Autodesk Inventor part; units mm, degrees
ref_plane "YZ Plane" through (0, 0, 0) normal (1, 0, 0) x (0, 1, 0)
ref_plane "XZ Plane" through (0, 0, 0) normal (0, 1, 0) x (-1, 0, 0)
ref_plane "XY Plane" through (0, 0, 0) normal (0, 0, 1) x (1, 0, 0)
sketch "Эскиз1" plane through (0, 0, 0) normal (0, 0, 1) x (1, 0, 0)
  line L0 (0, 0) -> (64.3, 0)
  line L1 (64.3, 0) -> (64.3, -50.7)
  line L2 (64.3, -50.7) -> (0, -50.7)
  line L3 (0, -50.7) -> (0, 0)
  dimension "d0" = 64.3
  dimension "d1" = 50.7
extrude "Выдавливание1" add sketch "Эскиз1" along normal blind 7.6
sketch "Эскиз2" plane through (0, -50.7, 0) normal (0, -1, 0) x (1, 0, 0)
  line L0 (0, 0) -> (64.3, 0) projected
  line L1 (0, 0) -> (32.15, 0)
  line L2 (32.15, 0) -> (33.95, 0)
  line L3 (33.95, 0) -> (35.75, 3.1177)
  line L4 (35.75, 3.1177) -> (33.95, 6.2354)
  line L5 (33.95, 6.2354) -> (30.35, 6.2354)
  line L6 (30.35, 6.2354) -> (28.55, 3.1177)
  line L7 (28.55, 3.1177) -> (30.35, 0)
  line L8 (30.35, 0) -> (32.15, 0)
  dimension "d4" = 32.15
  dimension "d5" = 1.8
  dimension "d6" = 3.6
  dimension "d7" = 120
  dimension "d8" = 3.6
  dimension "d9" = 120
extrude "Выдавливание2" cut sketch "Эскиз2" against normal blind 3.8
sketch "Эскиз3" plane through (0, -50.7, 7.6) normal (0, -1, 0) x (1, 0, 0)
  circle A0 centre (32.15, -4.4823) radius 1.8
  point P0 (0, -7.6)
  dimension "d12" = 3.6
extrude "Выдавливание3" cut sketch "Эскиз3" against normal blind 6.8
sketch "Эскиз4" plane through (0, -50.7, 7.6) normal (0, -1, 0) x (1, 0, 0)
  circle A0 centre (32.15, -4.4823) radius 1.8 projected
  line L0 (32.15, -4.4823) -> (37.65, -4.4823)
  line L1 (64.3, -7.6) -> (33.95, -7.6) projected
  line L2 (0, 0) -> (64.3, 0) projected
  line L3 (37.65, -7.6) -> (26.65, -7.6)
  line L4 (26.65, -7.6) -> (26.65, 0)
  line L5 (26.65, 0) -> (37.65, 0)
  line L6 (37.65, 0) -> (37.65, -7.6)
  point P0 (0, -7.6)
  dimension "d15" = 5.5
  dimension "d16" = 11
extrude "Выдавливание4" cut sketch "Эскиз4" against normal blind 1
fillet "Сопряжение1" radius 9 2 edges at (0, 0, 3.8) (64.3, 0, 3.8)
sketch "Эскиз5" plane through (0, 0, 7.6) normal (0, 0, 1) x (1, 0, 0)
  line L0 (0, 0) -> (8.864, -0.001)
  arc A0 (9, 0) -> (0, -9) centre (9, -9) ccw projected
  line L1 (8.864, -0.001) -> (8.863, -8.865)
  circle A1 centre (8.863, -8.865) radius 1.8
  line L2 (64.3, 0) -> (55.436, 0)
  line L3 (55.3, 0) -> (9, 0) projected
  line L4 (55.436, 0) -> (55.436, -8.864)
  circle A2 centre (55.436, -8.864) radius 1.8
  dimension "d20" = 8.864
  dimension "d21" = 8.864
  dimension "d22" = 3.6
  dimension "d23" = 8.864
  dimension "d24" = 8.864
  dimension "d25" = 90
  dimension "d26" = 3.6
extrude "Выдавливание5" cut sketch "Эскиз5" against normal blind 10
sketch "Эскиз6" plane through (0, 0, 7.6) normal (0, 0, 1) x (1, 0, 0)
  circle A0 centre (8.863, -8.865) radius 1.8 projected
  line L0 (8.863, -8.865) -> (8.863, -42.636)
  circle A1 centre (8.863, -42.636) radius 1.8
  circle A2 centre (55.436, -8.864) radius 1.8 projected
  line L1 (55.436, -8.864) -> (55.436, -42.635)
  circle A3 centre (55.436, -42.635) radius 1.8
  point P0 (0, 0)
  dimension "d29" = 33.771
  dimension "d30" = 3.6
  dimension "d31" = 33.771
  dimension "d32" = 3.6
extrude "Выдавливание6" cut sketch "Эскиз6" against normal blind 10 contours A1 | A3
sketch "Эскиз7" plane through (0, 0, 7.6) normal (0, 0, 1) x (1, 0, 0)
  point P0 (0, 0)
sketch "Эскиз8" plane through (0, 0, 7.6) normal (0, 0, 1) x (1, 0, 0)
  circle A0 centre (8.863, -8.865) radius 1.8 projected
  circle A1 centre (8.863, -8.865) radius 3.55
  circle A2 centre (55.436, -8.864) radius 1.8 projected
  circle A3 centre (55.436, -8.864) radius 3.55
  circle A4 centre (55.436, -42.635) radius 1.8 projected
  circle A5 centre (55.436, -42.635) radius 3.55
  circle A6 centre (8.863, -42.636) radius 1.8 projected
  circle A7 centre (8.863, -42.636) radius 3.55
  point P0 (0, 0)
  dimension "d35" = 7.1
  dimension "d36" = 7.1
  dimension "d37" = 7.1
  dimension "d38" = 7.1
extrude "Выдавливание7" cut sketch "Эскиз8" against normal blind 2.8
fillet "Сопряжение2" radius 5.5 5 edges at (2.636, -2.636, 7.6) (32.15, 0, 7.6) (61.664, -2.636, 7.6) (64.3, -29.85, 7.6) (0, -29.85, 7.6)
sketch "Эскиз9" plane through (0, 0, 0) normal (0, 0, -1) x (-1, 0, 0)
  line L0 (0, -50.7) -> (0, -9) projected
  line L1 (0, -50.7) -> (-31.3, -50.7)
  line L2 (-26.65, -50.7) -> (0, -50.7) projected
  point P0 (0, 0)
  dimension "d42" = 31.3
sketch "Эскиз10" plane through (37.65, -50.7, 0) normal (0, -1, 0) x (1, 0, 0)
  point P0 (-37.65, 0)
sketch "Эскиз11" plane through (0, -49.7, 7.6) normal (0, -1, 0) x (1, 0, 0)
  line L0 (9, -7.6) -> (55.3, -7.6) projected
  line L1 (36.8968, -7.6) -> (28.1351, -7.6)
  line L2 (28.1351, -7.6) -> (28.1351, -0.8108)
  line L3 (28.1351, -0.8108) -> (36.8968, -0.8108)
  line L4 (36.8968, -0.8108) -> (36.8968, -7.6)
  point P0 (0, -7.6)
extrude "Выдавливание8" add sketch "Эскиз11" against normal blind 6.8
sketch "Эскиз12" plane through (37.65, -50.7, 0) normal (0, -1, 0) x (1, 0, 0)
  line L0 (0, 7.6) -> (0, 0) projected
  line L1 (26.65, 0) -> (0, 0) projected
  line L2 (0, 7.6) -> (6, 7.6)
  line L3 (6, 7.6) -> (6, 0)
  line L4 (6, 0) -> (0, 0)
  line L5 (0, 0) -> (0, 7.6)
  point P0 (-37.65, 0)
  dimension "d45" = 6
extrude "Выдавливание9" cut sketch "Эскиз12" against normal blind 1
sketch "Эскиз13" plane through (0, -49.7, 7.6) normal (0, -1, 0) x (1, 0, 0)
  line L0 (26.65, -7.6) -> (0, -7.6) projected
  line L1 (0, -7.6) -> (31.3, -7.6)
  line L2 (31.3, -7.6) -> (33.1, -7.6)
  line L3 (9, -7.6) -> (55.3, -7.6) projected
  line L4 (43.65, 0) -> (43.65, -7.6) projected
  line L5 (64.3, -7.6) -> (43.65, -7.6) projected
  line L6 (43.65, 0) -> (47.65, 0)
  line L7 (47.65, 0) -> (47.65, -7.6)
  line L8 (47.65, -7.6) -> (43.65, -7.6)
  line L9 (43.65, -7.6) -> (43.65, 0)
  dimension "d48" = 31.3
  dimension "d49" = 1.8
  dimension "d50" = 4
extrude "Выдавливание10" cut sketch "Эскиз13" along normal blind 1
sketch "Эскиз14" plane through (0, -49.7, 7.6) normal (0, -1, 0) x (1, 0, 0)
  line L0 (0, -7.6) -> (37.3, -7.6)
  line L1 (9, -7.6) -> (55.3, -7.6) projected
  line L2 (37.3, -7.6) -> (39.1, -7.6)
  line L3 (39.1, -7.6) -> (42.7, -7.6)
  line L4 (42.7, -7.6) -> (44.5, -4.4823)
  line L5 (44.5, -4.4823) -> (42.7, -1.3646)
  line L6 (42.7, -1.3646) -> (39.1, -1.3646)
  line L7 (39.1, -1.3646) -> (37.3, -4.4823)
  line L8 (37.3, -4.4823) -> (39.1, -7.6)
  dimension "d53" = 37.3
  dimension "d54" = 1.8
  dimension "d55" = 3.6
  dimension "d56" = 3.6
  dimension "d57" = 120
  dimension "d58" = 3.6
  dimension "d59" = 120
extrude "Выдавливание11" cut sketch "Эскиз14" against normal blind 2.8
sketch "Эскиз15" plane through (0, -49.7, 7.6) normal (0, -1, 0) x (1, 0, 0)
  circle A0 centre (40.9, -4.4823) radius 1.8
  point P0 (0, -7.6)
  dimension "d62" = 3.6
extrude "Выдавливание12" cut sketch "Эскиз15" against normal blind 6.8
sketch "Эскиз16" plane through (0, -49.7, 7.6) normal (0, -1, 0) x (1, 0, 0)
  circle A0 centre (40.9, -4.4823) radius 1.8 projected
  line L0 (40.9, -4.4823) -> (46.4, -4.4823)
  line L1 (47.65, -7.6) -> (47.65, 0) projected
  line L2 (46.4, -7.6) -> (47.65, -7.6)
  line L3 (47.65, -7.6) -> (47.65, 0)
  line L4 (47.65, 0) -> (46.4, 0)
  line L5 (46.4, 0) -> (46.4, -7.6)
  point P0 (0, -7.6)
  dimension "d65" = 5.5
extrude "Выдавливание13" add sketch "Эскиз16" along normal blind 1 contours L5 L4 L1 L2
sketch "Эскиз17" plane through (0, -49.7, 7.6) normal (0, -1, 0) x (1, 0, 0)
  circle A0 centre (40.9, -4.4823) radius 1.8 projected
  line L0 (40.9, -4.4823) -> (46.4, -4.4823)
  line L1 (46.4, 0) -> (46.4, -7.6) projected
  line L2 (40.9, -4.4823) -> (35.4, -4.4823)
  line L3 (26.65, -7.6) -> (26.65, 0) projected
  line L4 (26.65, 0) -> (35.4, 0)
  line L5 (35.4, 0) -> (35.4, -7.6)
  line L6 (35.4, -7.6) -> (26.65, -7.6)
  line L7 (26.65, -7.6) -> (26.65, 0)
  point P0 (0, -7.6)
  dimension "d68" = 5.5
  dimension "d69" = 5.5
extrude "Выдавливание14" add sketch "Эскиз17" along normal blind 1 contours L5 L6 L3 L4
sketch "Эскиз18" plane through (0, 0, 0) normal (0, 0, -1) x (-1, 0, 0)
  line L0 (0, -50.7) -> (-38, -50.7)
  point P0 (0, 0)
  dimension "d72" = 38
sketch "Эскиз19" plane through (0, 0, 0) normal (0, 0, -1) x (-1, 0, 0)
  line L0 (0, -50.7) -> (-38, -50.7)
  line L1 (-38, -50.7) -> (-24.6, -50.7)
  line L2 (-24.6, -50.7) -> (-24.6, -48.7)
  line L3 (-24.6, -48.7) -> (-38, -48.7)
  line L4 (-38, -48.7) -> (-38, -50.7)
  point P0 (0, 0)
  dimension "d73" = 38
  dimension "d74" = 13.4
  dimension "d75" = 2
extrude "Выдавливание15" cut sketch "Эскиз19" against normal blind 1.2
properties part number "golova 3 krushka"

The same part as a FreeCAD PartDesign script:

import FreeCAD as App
import Part
import Sketcher
from FreeCAD import Vector
Q = App.Units.Quantity


def edges_at(feature, points):
    """Names of the edges that pass closest to the given points."""
    edges = feature.Shape.Edges
    near = lambda p: min(range(len(edges)), key=lambda i: edges[i].distToShape(Part.Vertex(*p))[0])
    return sorted({f"Edge{near(p) + 1}" for p in points})

doc = App.newDocument("Part")
body = doc.addObject("PartDesign::Body", "Body")

sketch1 = doc.addObject("Sketcher::SketchObject", "Sketch")
body.addObject(sketch1)
sketch1.AttachmentSupport = (doc.XY_Plane, [""])
sketch1.MapMode = "FlatFace"
sketch1.addGeometry([
    Part.LineSegment(Vector(64, 0, 0), Vector(0, 0, 0)),
    Part.LineSegment(Vector(0, 0, 0), Vector(0, -51, 0)),
    Part.LineSegment(Vector(0, -51, 0), Vector(64, -51, 0)),
    Part.LineSegment(Vector(64, -51, 0), Vector(64, 0, 0)),
], False)
sketch1.addConstraint([
    Sketcher.Constraint("Coincident", 0, 2, 1, 1),
    Sketcher.Constraint("Coincident", 1, 2, 2, 1),
    Sketcher.Constraint("Coincident", 2, 2, 3, 1),
    Sketcher.Constraint("Coincident", 3, 2, 0, 1),
    Sketcher.Constraint("Horizontal", 0),
    Sketcher.Constraint("Vertical", 1),
    Sketcher.Constraint("Horizontal", 2),
    Sketcher.Constraint("Vertical", 3),
    Sketcher.Constraint("Coincident", 0, 2, -1, 1),
    Sketcher.Constraint("DistanceX", 0, 2, 0, 1, 64.3),
    Sketcher.Constraint("DistanceY", 1, 2, 1, 1, 50.7),
])
pad1 = doc.addObject("PartDesign::Pad", "Pad")
body.addObject(pad1)
pad1.Profile = sketch1
pad1.Length = 7.6

sketch2 = doc.addObject("Sketcher::SketchObject", "Sketch001")
body.addObject(sketch2)
sketch2.AttachmentSupport = (doc.XZ_Plane, [""])
sketch2.MapMode = "FlatFace"
sketch2.AttachmentOffset = App.Placement(Vector(0, 0, 50.7), App.Rotation())
sketch2.addGeometry([
    Part.LineSegment(Vector(28.6, 3.1, 0), Vector(30.4, 0, 0)),
    Part.LineSegment(Vector(30.4, 0, 0), Vector(34, 0, 0)),
    Part.LineSegment(Vector(34, 0, 0), Vector(35.8, 3.1, 0)),
    Part.LineSegment(Vector(35.8, 3.1, 0), Vector(34, 6.2, 0)),
    Part.LineSegment(Vector(34, 6.2, 0), Vector(30.4, 6.2, 0)),
    Part.LineSegment(Vector(30.4, 6.2, 0), Vector(28.6, 3.1, 0)),
], False)
sketch2.addConstraint([
    Sketcher.Constraint("Coincident", 0, 2, 1, 1),
    Sketcher.Constraint("Coincident", 1, 2, 2, 1),
    Sketcher.Constraint("Coincident", 2, 2, 3, 1),
    Sketcher.Constraint("Coincident", 3, 2, 4, 1),
    Sketcher.Constraint("Coincident", 4, 2, 5, 1),
    Sketcher.Constraint("Coincident", 5, 2, 0, 1),
    Sketcher.Constraint("Horizontal", 1),
    Sketcher.Constraint("Horizontal", 4),
    Sketcher.Constraint("PointOnObject", 0, 2, -1),
    Sketcher.Constraint("Parallel", 0, 3),
    Sketcher.Constraint("Parallel", 2, 5),
    Sketcher.Constraint("Horizontal", 2, 2, 5, 2),
    Sketcher.Constraint("Vertical", 1, 2, 3, 2),
    Sketcher.Constraint("Vertical", 0, 2, 4, 2),
    Sketcher.Constraint("Angle", 3, Q("120 deg")),
    Sketcher.Constraint("DistanceX", 1, 1, 1, 2, 3.6),
    Sketcher.Constraint("Distance", 0, 3.6),
    Sketcher.Constraint("DistanceX", -1, 1, 0, 2, 30.35),
])
pocket1 = doc.addObject("PartDesign::Pocket", "Pocket")
body.addObject(pocket1)
pocket1.Profile = sketch2
pocket1.Length = 3.8

sketch3 = doc.addObject("Sketcher::SketchObject", "Sketch002")
body.addObject(sketch3)
sketch3.AttachmentSupport = (doc.XZ_Plane, [""])
sketch3.MapMode = "FlatFace"
sketch3.AttachmentOffset = App.Placement(Vector(0, 0, 50.7), App.Rotation())
sketch3.addGeometry(Part.Circle(Vector(32.1, 3.1, 0), Vector(0, 0, 1), 1.8), False)
sketch3.addConstraint([
    Sketcher.Constraint("Diameter", 0, 3.6),
    Sketcher.Constraint("DistanceX", -1, 1, 0, 3, 32.15),
    Sketcher.Constraint("DistanceY", -1, 1, 0, 3, 3.1177),
])
pocket2 = doc.addObject("PartDesign::Pocket", "Pocket001")
body.addObject(pocket2)
pocket2.Profile = sketch3
pocket2.Length = 6.8

sketch4 = doc.addObject("Sketcher::SketchObject", "Sketch003")
body.addObject(sketch4)
sketch4.AttachmentSupport = (doc.XZ_Plane, [""])
sketch4.MapMode = "FlatFace"
sketch4.AttachmentOffset = App.Placement(Vector(0, 0, 50.7), App.Rotation())
sketch4.addGeometry([
    Part.LineSegment(Vector(37.6, 0, 0), Vector(37.6, 3.1, 0)),
    Part.LineSegment(Vector(37.6, 3.1, 0), Vector(37.6, 7.6, 0)),
    Part.LineSegment(Vector(37.6, 7.6, 0), Vector(26.6, 7.6, 0)),
    Part.LineSegment(Vector(26.6, 7.6, 0), Vector(26.6, 0, 0)),
    Part.LineSegment(Vector(26.6, 0, 0), Vector(37.6, 0, 0)),
    Part.Circle(Vector(32.1, 3.1, 0), Vector(0, 0, 1), 1.8),
], False)
sketch4.addConstraint([
    Sketcher.Constraint("Coincident", 0, 2, 1, 1),
    Sketcher.Constraint("Coincident", 1, 2, 2, 1),
    Sketcher.Constraint("Coincident", 2, 2, 3, 1),
    Sketcher.Constraint("Coincident", 3, 2, 4, 1),
    Sketcher.Constraint("Coincident", 4, 2, 0, 1),
    Sketcher.Constraint("Vertical", 0),
    Sketcher.Constraint("Vertical", 1),
    Sketcher.Constraint("Horizontal", 2),
    Sketcher.Constraint("Vertical", 3),
    Sketcher.Constraint("Horizontal", 4),
    Sketcher.Constraint("PointOnObject", 3, 2, -1),
    Sketcher.Constraint("Horizontal", 5, 3, 0, 2),
    Sketcher.Constraint("DistanceX", 2, 2, 2, 1, 11.0),
    Sketcher.Constraint("Diameter", 5, 3.6),
    Sketcher.Constraint("DistanceX", 5, 3, 0, 2, 5.5),
    Sketcher.Constraint("DistanceY", 3, 2, 3, 1, 7.6),
    Sketcher.Constraint("DistanceX", -1, 1, 5, 3, 32.15),
    Sketcher.Constraint("DistanceY", 0, 1, 0, 2, 3.1177),
])
pocket3 = doc.addObject("PartDesign::Pocket", "Pocket002")
body.addObject(pocket3)
pocket3.Profile = sketch4
pocket3.Length = 1
doc.recompute()

fillet = doc.addObject("PartDesign::Fillet", "Fillet")
body.addObject(fillet)
fillet.Base = (pocket3, edges_at(pocket3, [(0, 0, 3.8), (64.3, 0, 3.8)]))
fillet.Radius = 9

sketch5 = doc.addObject("Sketcher::SketchObject", "Sketch004")
body.addObject(sketch5)
sketch5.AttachmentSupport = (doc.XY_Plane, [""])
sketch5.MapMode = "FlatFace"
sketch5.AttachmentOffset = App.Placement(Vector(0, 0, 7.6), App.Rotation())
sketch5.addGeometry([
    Part.Circle(Vector(8.9, -8.9, 0), Vector(0, 0, 1), 1.8),
    Part.Circle(Vector(55.4, -8.9, 0), Vector(0, 0, 1), 1.8),
], False)
sketch5.addConstraint([
    Sketcher.Constraint("Equal", 0, 1),
    Sketcher.Constraint("Diameter", 0, 3.6),
    Sketcher.Constraint("DistanceY", 1, 3, -1, 1, 8.864),
    Sketcher.Constraint("DistanceX", -1, 1, 0, 3, 8.863),
    Sketcher.Constraint("DistanceY", 0, 3, -1, 1, 8.865),
    Sketcher.Constraint("DistanceX", -1, 1, 1, 3, 55.436),
])
pocket4 = doc.addObject("PartDesign::Pocket", "Pocket003")
body.addObject(pocket4)
pocket4.Profile = sketch5
pocket4.Length = 10

sketch6 = doc.addObject("Sketcher::SketchObject", "Sketch005")
body.addObject(sketch6)
sketch6.AttachmentSupport = (doc.XY_Plane, [""])
sketch6.MapMode = "FlatFace"
sketch6.AttachmentOffset = App.Placement(Vector(0, 0, 7.6), App.Rotation())
sketch6.addGeometry([
    Part.Circle(Vector(8.9, -42.6, 0), Vector(0, 0, 1), 1.8),
    Part.Circle(Vector(55.4, -42.6, 0), Vector(0, 0, 1), 1.8),
], False)
sketch6.addConstraint([
    Sketcher.Constraint("Equal", 0, 1),
    Sketcher.Constraint("Diameter", 0, 3.6),
    Sketcher.Constraint("DistanceX", -1, 1, 0, 3, 8.863),
    Sketcher.Constraint("DistanceY", 0, 3, -1, 1, 42.636),
    Sketcher.Constraint("DistanceX", -1, 1, 1, 3, 55.436),
    Sketcher.Constraint("DistanceY", 1, 3, -1, 1, 42.635),
])
pocket5 = doc.addObject("PartDesign::Pocket", "Pocket004")
body.addObject(pocket5)
pocket5.Profile = sketch6
pocket5.Length = 10

sketch7 = doc.addObject("Sketcher::SketchObject", "Sketch006")
body.addObject(sketch7)
sketch7.AttachmentSupport = (doc.XY_Plane, [""])
sketch7.MapMode = "FlatFace"
sketch7.AttachmentOffset = App.Placement(Vector(0, 0, 7.6), App.Rotation())
sketch7.addGeometry([
    Part.Circle(Vector(8.9, -8.9, 0), Vector(0, 0, 1), 3.5),
    Part.Circle(Vector(8.9, -8.9, 0), Vector(0, 0, 1), 1.8),
    Part.Circle(Vector(55.4, -8.9, 0), Vector(0, 0, 1), 3.5),
    Part.Circle(Vector(55.4, -8.9, 0), Vector(0, 0, 1), 1.8),
    Part.Circle(Vector(55.4, -42.6, 0), Vector(0, 0, 1), 3.5),
    Part.Circle(Vector(55.4, -42.6, 0), Vector(0, 0, 1), 1.8),
    Part.Circle(Vector(8.9, -42.6, 0), Vector(0, 0, 1), 3.5),
    Part.Circle(Vector(8.9, -42.6, 0), Vector(0, 0, 1), 1.8),
], False)
sketch7.addConstraint([
    Sketcher.Constraint("Coincident", 1, 3, 0, 3),
    Sketcher.Constraint("Coincident", 3, 3, 2, 3),
    Sketcher.Constraint("Coincident", 5, 3, 4, 3),
    Sketcher.Constraint("Coincident", 7, 3, 6, 3),
    Sketcher.Constraint("Equal", 0, 2),
    Sketcher.Constraint("Equal", 1, 3),
    Sketcher.Constraint("Equal", 2, 4),
    Sketcher.Constraint("Equal", 3, 5),
    Sketcher.Constraint("Equal", 4, 6),
    Sketcher.Constraint("Equal", 5, 7),
    Sketcher.Constraint("Vertical", 3, 3, 4, 3),
    Sketcher.Constraint("Vertical", 1, 3, 6, 3),
    Sketcher.Constraint("Diameter", 0, 7.1),
    Sketcher.Constraint("Diameter", 1, 3.6),
    Sketcher.Constraint("DistanceY", 4, 3, 0, 3, 33.77),
    Sketcher.Constraint("DistanceX", -1, 1, 0, 3, 8.863),
    Sketcher.Constraint("DistanceY", 0, 3, -1, 1, 8.865),
    Sketcher.Constraint("DistanceX", -1, 1, 2, 3, 55.436),
    Sketcher.Constraint("DistanceY", 2, 3, -1, 1, 8.864),
    Sketcher.Constraint("DistanceY", 6, 3, -1, 1, 42.636),
])
pocket6 = doc.addObject("PartDesign::Pocket", "Pocket005")
body.addObject(pocket6)
pocket6.Profile = sketch7
pocket6.Length = 2.8
doc.recompute()

fillet2 = doc.addObject("PartDesign::Fillet", "Fillet001")
body.addObject(fillet2)
fillet2.Base = (pocket6, edges_at(pocket6, [
    (2.636, -2.636, 7.6),
    (32.15, 0, 7.6),
    (61.664, -2.636, 7.6),
    (64.3, -29.85, 7.6),
    (0, -29.85, 7.6),
]))
fillet2.Radius = 5.5

sketch8 = doc.addObject("Sketcher::SketchObject", "Sketch007")
body.addObject(sketch8)
sketch8.AttachmentSupport = (doc.XZ_Plane, [""])
sketch8.MapMode = "FlatFace"
sketch8.AttachmentOffset = App.Placement(Vector(0, 0, 49.7), App.Rotation())
sketch8.addGeometry([
    Part.LineSegment(Vector(28, 7, 0), Vector(28, 0, 0)),
    Part.LineSegment(Vector(28, 0, 0), Vector(37, 0, 0)),
    Part.LineSegment(Vector(37, 0, 0), Vector(37, 7, 0)),
    Part.LineSegment(Vector(37, 7, 0), Vector(28, 7, 0)),
], False)
sketch8.addConstraint([
    Sketcher.Constraint("Coincident", 0, 2, 1, 1),
    Sketcher.Constraint("Coincident", 1, 2, 2, 1),
    Sketcher.Constraint("Coincident", 2, 2, 3, 1),
    Sketcher.Constraint("Coincident", 3, 2, 0, 1),
    Sketcher.Constraint("Vertical", 0),
    Sketcher.Constraint("Horizontal", 1),
    Sketcher.Constraint("Vertical", 2),
    Sketcher.Constraint("Horizontal", 3),
    Sketcher.Constraint("PointOnObject", 0, 2, -1),
    Sketcher.Constraint("DistanceX", 1, 1, 1, 2, 8.7617),
    Sketcher.Constraint("DistanceY", 0, 2, 0, 1, 6.7892),
    Sketcher.Constraint("DistanceX", -1, 1, 0, 2, 28.135),
])
pad2 = doc.addObject("PartDesign::Pad", "Pad001")
body.addObject(pad2)
pad2.Profile = sketch8
pad2.Length = 6.8
pad2.Reversed = True

sketch9 = doc.addObject("Sketcher::SketchObject", "Sketch008")
body.addObject(sketch9)
sketch9.AttachmentSupport = (doc.XZ_Plane, [""])
sketch9.MapMode = "FlatFace"
sketch9.AttachmentOffset = App.Placement(Vector(0, 0, 50.7), App.Rotation())
sketch9.addGeometry([
    Part.LineSegment(Vector(44, 8, 0), Vector(38, 8, 0)),
    Part.LineSegment(Vector(38, 8, 0), Vector(38, 0, 0)),
    Part.LineSegment(Vector(38, 0, 0), Vector(44, 0, 0)),
    Part.LineSegment(Vector(44, 0, 0), Vector(44, 8, 0)),
], False)
sketch9.addConstraint([
    Sketcher.Constraint("Coincident", 0, 2, 1, 1),
    Sketcher.Constraint("Coincident", 1, 2, 2, 1),
    Sketcher.Constraint("Coincident", 2, 2, 3, 1),
    Sketcher.Constraint("Coincident", 3, 2, 0, 1),
    Sketcher.Constraint("Horizontal", 0),
    Sketcher.Constraint("Vertical", 1),
    Sketcher.Constraint("Horizontal", 2),
    Sketcher.Constraint("Vertical", 3),
    Sketcher.Constraint("PointOnObject", 1, 2, -1),
    Sketcher.Constraint("DistanceX", 0, 2, 0, 1, 6.0),
    Sketcher.Constraint("DistanceY", 1, 2, 1, 1, 7.6),
    Sketcher.Constraint("DistanceX", -1, 1, 0, 2, 37.65),
])
pocket7 = doc.addObject("PartDesign::Pocket", "Pocket006")
body.addObject(pocket7)
pocket7.Profile = sketch9
pocket7.Length = 1

sketch10 = doc.addObject("Sketcher::SketchObject", "Sketch009")
body.addObject(sketch10)
sketch10.AttachmentSupport = (doc.XZ_Plane, [""])
sketch10.MapMode = "FlatFace"
sketch10.AttachmentOffset = App.Placement(Vector(0, 0, 49.7), App.Rotation())
sketch10.addGeometry([
    Part.LineSegment(Vector(43.6, 7.6, 0), Vector(43.6, 0, 0)),
    Part.LineSegment(Vector(43.6, 0, 0), Vector(47.6, 0, 0)),
    Part.LineSegment(Vector(47.6, 0, 0), Vector(47.6, 7.6, 0)),
    Part.LineSegment(Vector(47.6, 7.6, 0), Vector(43.6, 7.6, 0)),
], False)
sketch10.addConstraint([
    Sketcher.Constraint("Coincident", 0, 2, 1, 1),
    Sketcher.Constraint("Coincident", 1, 2, 2, 1),
    Sketcher.Constraint("Coincident", 2, 2, 3, 1),
    Sketcher.Constraint("Coincident", 3, 2, 0, 1),
    Sketcher.Constraint("Vertical", 0),
    Sketcher.Constraint("Horizontal", 1),
    Sketcher.Constraint("Vertical", 2),
    Sketcher.Constraint("Horizontal", 3),
    Sketcher.Constraint("PointOnObject", 0, 2, -1),
    Sketcher.Constraint("DistanceX", 1, 1, 1, 2, 4.0),
    Sketcher.Constraint("DistanceY", 0, 2, 0, 1, 7.6),
    Sketcher.Constraint("DistanceX", -1, 1, 0, 2, 43.65),
])
pocket8 = doc.addObject("PartDesign::Pocket", "Pocket007")
body.addObject(pocket8)
pocket8.Profile = sketch10
pocket8.Length = 1
pocket8.Reversed = True

sketch11 = doc.addObject("Sketcher::SketchObject", "Sketch010")
body.addObject(sketch11)
sketch11.AttachmentSupport = (doc.XZ_Plane, [""])
sketch11.MapMode = "FlatFace"
sketch11.AttachmentOffset = App.Placement(Vector(0, 0, 49.7), App.Rotation())
sketch11.addGeometry([
    Part.LineSegment(Vector(37.3, 3.1, 0), Vector(39.1, 0, 0)),
    Part.LineSegment(Vector(39.1, 0, 0), Vector(42.7, 0, 0)),
    Part.LineSegment(Vector(42.7, 0, 0), Vector(44.5, 3.1, 0)),
    Part.LineSegment(Vector(44.5, 3.1, 0), Vector(42.7, 6.2, 0)),
    Part.LineSegment(Vector(42.7, 6.2, 0), Vector(39.1, 6.2, 0)),
    Part.LineSegment(Vector(39.1, 6.2, 0), Vector(37.3, 3.1, 0)),
], False)
sketch11.addConstraint([
    Sketcher.Constraint("Coincident", 0, 2, 1, 1),
    Sketcher.Constraint("Coincident", 1, 2, 2, 1),
    Sketcher.Constraint("Coincident", 2, 2, 3, 1),
    Sketcher.Constraint("Coincident", 3, 2, 4, 1),
    Sketcher.Constraint("Coincident", 4, 2, 5, 1),
    Sketcher.Constraint("Coincident", 5, 2, 0, 1),
    Sketcher.Constraint("Horizontal", 1),
    Sketcher.Constraint("Horizontal", 4),
    Sketcher.Constraint("PointOnObject", 0, 2, -1),
    Sketcher.Constraint("Parallel", 0, 3),
    Sketcher.Constraint("Parallel", 2, 5),
    Sketcher.Constraint("Horizontal", 2, 2, 5, 2),
    Sketcher.Constraint("Vertical", 1, 2, 3, 2),
    Sketcher.Constraint("Vertical", 0, 2, 4, 2),
    Sketcher.Constraint("Angle", 3, Q("120 deg")),
    Sketcher.Constraint("DistanceX", 1, 1, 1, 2, 3.6),
    Sketcher.Constraint("Distance", 0, 3.6),
    Sketcher.Constraint("DistanceX", -1, 1, 5, 2, 37.3),
])
pocket9 = doc.addObject("PartDesign::Pocket", "Pocket008")
body.addObject(pocket9)
pocket9.Profile = sketch11
pocket9.Length = 2.8

sketch12 = doc.addObject("Sketcher::SketchObject", "Sketch011")
body.addObject(sketch12)
sketch12.AttachmentSupport = (doc.XZ_Plane, [""])
sketch12.MapMode = "FlatFace"
sketch12.AttachmentOffset = App.Placement(Vector(0, 0, 49.7), App.Rotation())
sketch12.addGeometry(Part.Circle(Vector(40.9, 3.1, 0), Vector(0, 0, 1), 1.8), False)
sketch12.addConstraint([
    Sketcher.Constraint("Diameter", 0, 3.6),
    Sketcher.Constraint("DistanceX", -1, 1, 0, 3, 40.9),
    Sketcher.Constraint("DistanceY", -1, 1, 0, 3, 3.1177),
])
pocket10 = doc.addObject("PartDesign::Pocket", "Pocket009")
body.addObject(pocket10)
pocket10.Profile = sketch12
pocket10.Length = 6.8

sketch13 = doc.addObject("Sketcher::SketchObject", "Sketch012")
body.addObject(sketch13)
sketch13.AttachmentSupport = (doc.XZ_Plane, [""])
sketch13.MapMode = "FlatFace"
sketch13.AttachmentOffset = App.Placement(Vector(0, 0, 49.7), App.Rotation())
sketch13.addGeometry([
    Part.LineSegment(Vector(46.4, 7.6, 0), Vector(46.4, 0, 0)),
    Part.LineSegment(Vector(46.4, 0, 0), Vector(47.6, 0, 0)),
    Part.LineSegment(Vector(47.6, 0, 0), Vector(47.6, 7.6, 0)),
    Part.LineSegment(Vector(47.6, 7.6, 0), Vector(46.4, 7.6, 0)),
], False)
sketch13.addConstraint([
    Sketcher.Constraint("Coincident", 0, 2, 1, 1),
    Sketcher.Constraint("Coincident", 1, 2, 2, 1),
    Sketcher.Constraint("Coincident", 2, 2, 3, 1),
    Sketcher.Constraint("Coincident", 3, 2, 0, 1),
    Sketcher.Constraint("Vertical", 0),
    Sketcher.Constraint("Horizontal", 1),
    Sketcher.Constraint("Vertical", 2),
    Sketcher.Constraint("Horizontal", 3),
    Sketcher.Constraint("PointOnObject", 0, 2, -1),
    Sketcher.Constraint("DistanceY", 0, 2, 0, 1, 7.6),
    Sketcher.Constraint("DistanceX", 1, 1, 1, 2, 1.25),
    Sketcher.Constraint("DistanceX", -1, 1, 0, 2, 46.4),
])
pad3 = doc.addObject("PartDesign::Pad", "Pad002")
body.addObject(pad3)
pad3.Profile = sketch13
pad3.Length = 1

sketch14 = doc.addObject("Sketcher::SketchObject", "Sketch013")
body.addObject(sketch14)
sketch14.AttachmentSupport = (doc.XZ_Plane, [""])
sketch14.MapMode = "FlatFace"
sketch14.AttachmentOffset = App.Placement(Vector(0, 0, 49.7), App.Rotation())
sketch14.addGeometry([
    Part.LineSegment(Vector(35, 0, 0), Vector(35, 8, 0)),
    Part.LineSegment(Vector(35, 8, 0), Vector(27, 8, 0)),
    Part.LineSegment(Vector(27, 8, 0), Vector(27, 0, 0)),
    Part.LineSegment(Vector(27, 0, 0), Vector(35, 0, 0)),
], False)
sketch14.addConstraint([
    Sketcher.Constraint("Coincident", 0, 2, 1, 1),
    Sketcher.Constraint("Coincident", 1, 2, 2, 1),
    Sketcher.Constraint("Coincident", 2, 2, 3, 1),
    Sketcher.Constraint("Coincident", 3, 2, 0, 1),
    Sketcher.Constraint("Vertical", 0),
    Sketcher.Constraint("Horizontal", 1),
    Sketcher.Constraint("Vertical", 2),
    Sketcher.Constraint("Horizontal", 3),
    Sketcher.Constraint("PointOnObject", 2, 2, -1),
    Sketcher.Constraint("DistanceY", 0, 1, 0, 2, 7.6),
    Sketcher.Constraint("DistanceX", 1, 2, 1, 1, 8.75),
    Sketcher.Constraint("DistanceX", -1, 1, 0, 2, 35.4),
])
pad4 = doc.addObject("PartDesign::Pad", "Pad003")
body.addObject(pad4)
pad4.Profile = sketch14
pad4.Length = 1

sketch15 = doc.addObject("Sketcher::SketchObject", "Sketch014")
body.addObject(sketch15)
sketch15.AttachmentSupport = (doc.XY_Plane, [""])
sketch15.MapMode = "FlatFace"
sketch15.addGeometry([
    Part.LineSegment(Vector(38, -50.7, 0), Vector(24.6, -50.7, 0)),
    Part.LineSegment(Vector(24.6, -50.7, 0), Vector(24.6, -48.7, 0)),
    Part.LineSegment(Vector(24.6, -48.7, 0), Vector(38, -48.7, 0)),
    Part.LineSegment(Vector(38, -48.7, 0), Vector(38, -50.7, 0)),
], False)
sketch15.addConstraint([
    Sketcher.Constraint("Coincident", 0, 2, 1, 1),
    Sketcher.Constraint("Coincident", 1, 2, 2, 1),
    Sketcher.Constraint("Coincident", 2, 2, 3, 1),
    Sketcher.Constraint("Coincident", 3, 2, 0, 1),
    Sketcher.Constraint("Horizontal", 0),
    Sketcher.Constraint("Vertical", 1),
    Sketcher.Constraint("Horizontal", 2),
    Sketcher.Constraint("Vertical", 3),
    Sketcher.Constraint("DistanceY", 1, 1, 1, 2, 2.0),
    Sketcher.Constraint("DistanceX", 0, 2, 0, 1, 13.4),
    Sketcher.Constraint("DistanceX", -1, 1, 2, 2, 38.0),
    Sketcher.Constraint("DistanceY", 0, 2, -1, 1, 50.7),
])
pocket11 = doc.addObject("PartDesign::Pocket", "Pocket010")
body.addObject(pocket11)
pocket11.Profile = sketch15
pocket11.Length = 1.2
pocket11.Reversed = True

doc.recompute()
